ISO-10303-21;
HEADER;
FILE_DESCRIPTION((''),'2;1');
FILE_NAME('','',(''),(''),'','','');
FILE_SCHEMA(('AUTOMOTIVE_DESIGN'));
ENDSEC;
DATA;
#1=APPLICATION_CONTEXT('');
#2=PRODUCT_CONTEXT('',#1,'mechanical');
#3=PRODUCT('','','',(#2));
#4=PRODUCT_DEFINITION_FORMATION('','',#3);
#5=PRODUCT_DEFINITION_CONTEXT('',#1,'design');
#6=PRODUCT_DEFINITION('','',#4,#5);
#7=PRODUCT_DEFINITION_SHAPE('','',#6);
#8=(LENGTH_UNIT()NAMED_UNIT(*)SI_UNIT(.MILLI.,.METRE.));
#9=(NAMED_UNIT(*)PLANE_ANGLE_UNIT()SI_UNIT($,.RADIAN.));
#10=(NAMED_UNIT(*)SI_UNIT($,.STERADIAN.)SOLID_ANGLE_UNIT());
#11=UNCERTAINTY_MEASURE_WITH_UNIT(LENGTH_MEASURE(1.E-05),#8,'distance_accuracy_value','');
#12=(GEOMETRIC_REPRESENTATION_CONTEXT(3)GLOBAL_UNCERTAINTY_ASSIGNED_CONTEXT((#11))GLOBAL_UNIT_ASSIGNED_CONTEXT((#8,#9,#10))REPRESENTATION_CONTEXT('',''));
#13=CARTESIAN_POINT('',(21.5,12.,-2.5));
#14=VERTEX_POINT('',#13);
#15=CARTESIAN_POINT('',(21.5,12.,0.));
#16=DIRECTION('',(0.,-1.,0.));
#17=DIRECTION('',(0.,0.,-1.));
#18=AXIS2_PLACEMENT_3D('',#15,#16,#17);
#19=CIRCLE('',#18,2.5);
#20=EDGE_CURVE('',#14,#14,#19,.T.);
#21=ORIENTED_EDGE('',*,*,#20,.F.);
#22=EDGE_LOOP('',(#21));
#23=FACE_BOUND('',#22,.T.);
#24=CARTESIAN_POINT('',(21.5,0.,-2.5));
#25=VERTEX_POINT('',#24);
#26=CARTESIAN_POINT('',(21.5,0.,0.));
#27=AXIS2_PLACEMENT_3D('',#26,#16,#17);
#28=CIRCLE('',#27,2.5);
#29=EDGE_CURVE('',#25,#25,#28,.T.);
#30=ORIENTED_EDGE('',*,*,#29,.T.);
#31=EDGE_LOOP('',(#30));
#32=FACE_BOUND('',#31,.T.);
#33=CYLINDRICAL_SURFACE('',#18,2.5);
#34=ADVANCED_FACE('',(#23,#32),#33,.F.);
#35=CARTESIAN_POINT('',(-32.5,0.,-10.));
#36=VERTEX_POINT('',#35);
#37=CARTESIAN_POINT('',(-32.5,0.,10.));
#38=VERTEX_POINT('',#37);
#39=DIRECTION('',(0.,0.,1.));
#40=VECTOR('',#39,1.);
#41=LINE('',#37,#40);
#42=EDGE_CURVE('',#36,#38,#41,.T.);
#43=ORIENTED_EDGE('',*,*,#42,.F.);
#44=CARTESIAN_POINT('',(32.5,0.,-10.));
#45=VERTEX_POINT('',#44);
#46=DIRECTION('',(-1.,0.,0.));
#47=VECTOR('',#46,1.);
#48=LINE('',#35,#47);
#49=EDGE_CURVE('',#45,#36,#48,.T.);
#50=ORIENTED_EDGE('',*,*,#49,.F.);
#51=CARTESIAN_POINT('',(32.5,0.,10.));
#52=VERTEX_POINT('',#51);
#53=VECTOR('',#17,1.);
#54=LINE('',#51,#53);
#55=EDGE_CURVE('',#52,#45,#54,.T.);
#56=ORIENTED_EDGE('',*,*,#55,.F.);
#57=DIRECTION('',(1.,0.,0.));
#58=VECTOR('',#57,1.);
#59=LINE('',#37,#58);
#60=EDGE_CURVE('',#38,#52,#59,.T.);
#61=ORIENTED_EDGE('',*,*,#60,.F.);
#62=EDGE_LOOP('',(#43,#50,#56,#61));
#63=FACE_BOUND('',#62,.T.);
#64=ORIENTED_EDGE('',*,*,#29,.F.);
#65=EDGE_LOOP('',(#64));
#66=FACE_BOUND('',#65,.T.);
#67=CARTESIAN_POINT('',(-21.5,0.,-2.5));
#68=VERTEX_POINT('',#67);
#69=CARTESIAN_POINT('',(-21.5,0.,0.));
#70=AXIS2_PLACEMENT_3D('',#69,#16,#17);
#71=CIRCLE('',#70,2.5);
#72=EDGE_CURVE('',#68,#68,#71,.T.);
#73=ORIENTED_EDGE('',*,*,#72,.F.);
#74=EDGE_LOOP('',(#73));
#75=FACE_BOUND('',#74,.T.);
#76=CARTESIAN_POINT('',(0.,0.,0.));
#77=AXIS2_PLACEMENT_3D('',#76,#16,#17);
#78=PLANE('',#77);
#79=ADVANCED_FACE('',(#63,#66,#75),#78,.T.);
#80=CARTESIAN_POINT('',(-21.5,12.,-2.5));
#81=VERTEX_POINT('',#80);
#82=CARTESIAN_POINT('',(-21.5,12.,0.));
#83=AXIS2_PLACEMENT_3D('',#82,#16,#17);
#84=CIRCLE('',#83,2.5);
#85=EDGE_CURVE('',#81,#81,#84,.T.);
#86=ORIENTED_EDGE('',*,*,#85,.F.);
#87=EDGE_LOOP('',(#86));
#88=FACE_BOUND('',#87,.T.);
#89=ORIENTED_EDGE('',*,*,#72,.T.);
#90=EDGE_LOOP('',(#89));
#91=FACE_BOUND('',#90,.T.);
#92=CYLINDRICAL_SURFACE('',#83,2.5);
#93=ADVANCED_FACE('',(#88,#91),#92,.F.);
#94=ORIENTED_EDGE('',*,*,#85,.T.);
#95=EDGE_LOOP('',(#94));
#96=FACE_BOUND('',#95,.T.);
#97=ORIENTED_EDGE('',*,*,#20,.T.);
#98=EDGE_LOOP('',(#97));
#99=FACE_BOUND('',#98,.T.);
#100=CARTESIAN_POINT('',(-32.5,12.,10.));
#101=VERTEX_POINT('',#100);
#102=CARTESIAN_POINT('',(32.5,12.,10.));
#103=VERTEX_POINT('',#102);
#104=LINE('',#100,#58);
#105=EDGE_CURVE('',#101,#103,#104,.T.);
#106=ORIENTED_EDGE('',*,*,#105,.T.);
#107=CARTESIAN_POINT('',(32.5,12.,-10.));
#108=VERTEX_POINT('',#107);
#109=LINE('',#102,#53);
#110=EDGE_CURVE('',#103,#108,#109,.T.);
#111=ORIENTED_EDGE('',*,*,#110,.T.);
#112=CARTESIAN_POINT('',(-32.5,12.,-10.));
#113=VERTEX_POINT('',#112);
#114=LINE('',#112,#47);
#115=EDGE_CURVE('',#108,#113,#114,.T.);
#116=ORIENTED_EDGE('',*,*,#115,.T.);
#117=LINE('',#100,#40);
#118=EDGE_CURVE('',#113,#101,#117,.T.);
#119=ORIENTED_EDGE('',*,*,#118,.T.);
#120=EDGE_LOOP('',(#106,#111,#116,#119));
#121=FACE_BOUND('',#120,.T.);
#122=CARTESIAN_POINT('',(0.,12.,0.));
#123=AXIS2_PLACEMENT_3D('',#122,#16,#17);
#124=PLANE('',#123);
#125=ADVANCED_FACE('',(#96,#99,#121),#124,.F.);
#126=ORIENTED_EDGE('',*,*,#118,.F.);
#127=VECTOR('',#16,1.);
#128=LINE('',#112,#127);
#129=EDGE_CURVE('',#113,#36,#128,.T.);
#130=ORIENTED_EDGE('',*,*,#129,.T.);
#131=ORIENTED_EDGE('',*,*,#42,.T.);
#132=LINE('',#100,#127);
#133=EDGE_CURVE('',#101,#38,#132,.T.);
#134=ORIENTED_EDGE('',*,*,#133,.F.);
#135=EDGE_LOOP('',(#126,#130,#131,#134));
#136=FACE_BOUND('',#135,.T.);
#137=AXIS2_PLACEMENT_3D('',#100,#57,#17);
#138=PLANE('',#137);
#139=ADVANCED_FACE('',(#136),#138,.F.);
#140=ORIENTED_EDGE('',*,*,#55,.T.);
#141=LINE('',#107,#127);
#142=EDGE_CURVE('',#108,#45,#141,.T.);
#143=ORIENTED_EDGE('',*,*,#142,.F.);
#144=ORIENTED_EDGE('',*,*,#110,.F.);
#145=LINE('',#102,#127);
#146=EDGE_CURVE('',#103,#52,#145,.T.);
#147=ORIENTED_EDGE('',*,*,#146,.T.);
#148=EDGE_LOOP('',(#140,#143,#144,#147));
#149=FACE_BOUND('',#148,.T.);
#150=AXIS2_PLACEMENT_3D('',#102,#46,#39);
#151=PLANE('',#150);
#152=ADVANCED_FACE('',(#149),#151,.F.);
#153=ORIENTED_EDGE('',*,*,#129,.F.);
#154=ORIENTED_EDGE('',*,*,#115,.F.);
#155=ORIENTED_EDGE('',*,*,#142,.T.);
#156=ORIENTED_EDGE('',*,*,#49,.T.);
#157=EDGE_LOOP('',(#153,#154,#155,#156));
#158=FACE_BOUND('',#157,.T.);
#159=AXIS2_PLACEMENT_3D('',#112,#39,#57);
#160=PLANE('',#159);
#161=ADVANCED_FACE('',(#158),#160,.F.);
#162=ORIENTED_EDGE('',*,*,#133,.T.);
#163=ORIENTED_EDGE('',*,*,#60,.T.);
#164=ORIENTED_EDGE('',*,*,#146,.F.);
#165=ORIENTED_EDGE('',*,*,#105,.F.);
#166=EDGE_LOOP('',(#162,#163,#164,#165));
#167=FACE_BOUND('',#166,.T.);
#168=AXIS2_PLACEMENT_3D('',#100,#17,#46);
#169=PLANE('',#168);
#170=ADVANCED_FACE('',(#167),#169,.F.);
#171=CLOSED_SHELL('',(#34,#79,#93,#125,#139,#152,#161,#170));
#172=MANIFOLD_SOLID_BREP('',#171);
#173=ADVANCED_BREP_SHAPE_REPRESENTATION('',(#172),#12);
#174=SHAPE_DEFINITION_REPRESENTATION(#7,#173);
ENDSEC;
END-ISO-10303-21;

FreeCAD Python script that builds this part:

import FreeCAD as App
import Part
import Sketcher

V = App.Vector
Q = App.Units.Quantity

doc = App.newDocument("Part")
body = doc.addObject("PartDesign::Body", "Body")

# Sketch on XZ plane
sketch1 = body.newObject("Sketcher::SketchObject", "Sketch")
sketch1.AttachmentSupport = (doc.getObject("XZ_Plane"), [""])
sketch1.MapMode = "FlatFace"
sketch1.addGeometry(Part.LineSegment(V(-32.5, -10, 0), V(-32.5, 10, 0)), False)
sketch1.addGeometry(Part.LineSegment(V(-32.5, 10, 0), V(32.5, 10, 0)), False)
sketch1.addGeometry(Part.LineSegment(V(32.5, 10, 0), V(32.5, -10, 0)), False)
sketch1.addGeometry(Part.LineSegment(V(32.5, -10, 0), V(-32.5, -10, 0)), False)
sketch1.addConstraint(Sketcher.Constraint("Coincident", 0, 2, 1, 1))
sketch1.addConstraint(Sketcher.Constraint("Coincident", 1, 2, 2, 1))
sketch1.addConstraint(Sketcher.Constraint("Coincident", 2, 2, 3, 1))
sketch1.addConstraint(Sketcher.Constraint("Coincident", 3, 2, 0, 1))
sketch1.addConstraint(Sketcher.Constraint("Vertical", 0))
sketch1.addConstraint(Sketcher.Constraint("Horizontal", 1))
sketch1.addConstraint(Sketcher.Constraint("Vertical", 2))
sketch1.addConstraint(Sketcher.Constraint("Horizontal", 3))
sketch1.addConstraint(Sketcher.Constraint("Symmetric", 0, 2, 2, 2, -1, 1))
sketch1.addConstraint(Sketcher.Constraint("DistanceX", 1, 1, 1, 2, Q("65 mm")))
sketch1.addConstraint(Sketcher.Constraint("DistanceY", 0, 1, 0, 2, Q("20 mm")))
pad1 = body.newObject("PartDesign::Pad", "Pad")
pad1.Profile = sketch1
pad1.Length = 12
pad1.Reversed = True

# Sketch on XZ plane
sketch2 = body.newObject("Sketcher::SketchObject", "Sketch001")
sketch2.AttachmentSupport = (doc.getObject("XZ_Plane"), [""])
sketch2.MapMode = "FlatFace"
sketch2.addGeometry(Part.Circle(V(-21.5, 0, 0), V(0, 0, 1), 2.5), False)
sketch2.addGeometry(Part.Circle(V(21.5, 0, 0), V(0, 0, 1), 2.5), False)
sketch2.addConstraint(Sketcher.Constraint("Equal", 0, 1))
sketch2.addConstraint(Sketcher.Constraint("Symmetric", 0, 3, 1, 3, -1, 1))
sketch2.addConstraint(Sketcher.Constraint("PointOnObject", 0, 3, -1))
sketch2.addConstraint(Sketcher.Constraint("Diameter", 0, Q("5 mm")))
sketch2.addConstraint(Sketcher.Constraint("DistanceX", 0, 3, 1, 3, Q("43 mm")))
pocket1 = body.newObject("PartDesign::Pocket", "Pocket")
pocket1.Profile = sketch2
pocket1.Type = "ThroughAll"
pocket1.Midplane = True

doc.recompute()
